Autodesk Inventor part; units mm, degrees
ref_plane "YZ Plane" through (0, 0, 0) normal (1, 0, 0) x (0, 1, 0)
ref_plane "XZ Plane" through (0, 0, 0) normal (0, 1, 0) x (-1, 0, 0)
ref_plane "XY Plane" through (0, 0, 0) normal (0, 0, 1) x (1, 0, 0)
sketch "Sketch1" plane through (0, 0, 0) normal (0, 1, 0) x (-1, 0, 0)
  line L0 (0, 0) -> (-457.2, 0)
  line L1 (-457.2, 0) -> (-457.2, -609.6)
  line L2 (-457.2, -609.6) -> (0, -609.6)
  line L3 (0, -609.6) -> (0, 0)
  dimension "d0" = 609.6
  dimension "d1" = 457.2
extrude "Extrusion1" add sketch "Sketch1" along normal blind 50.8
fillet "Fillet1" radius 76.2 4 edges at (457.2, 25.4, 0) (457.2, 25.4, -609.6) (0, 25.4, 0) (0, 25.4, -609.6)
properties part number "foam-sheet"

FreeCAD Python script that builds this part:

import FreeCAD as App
import Part
import Sketcher

V = App.Vector
Q = App.Units.Quantity


def edges_at(feature, points):
    """Names of the edges that pass closest to the given points."""
    edges = feature.Shape.Edges
    near = lambda p: min(range(len(edges)), key=lambda i: edges[i].distToShape(Part.Vertex(*p))[0])
    return sorted({f"Edge{near(p) + 1}" for p in points})


def add_polygon(sketch, points):
    """Adds a closed chain of lines whose ends are joined by coincident constraints."""
    first, n = sketch.GeometryCount, len(points)
    for a, b in zip(points, points[1:] + points[:1]):
        sketch.addGeometry(Part.LineSegment(App.Vector(*a, 0), App.Vector(*b, 0)), False)
    for i in range(n):
        sketch.addConstraint(Sketcher.Constraint("Coincident", first + i, 2, first + (i + 1) % n, 1))

doc = App.newDocument("Part")
body = doc.addObject("PartDesign::Body", "Body")

# Sketch on XZ plane
sketch1 = body.newObject("Sketcher::SketchObject", "Sketch")
sketch1.AttachmentSupport = (doc.getObject("XZ_Plane"), [""])
sketch1.MapMode = "FlatFace"
add_polygon(sketch1, [(0, -610), (0, 0), (457, 0), (457, -610)])  # lines 0-3
sketch1.addConstraint([
    Sketcher.Constraint("Vertical", 0),
    Sketcher.Constraint("Horizontal", 1),
    Sketcher.Constraint("Vertical", 2),
    Sketcher.Constraint("Horizontal", 3),
    Sketcher.Constraint("Coincident", 0, 2, -1, 1),
    Sketcher.Constraint("DistanceX", 1, 1, 1, 2, Q("18 in")),
    Sketcher.Constraint("DistanceY", 0, 1, 0, 2, Q("24 in")),
])
pad1 = body.newObject("PartDesign::Pad", "Pad")
pad1.Profile = sketch1
pad1.Length = Q("2 in")
pad1.Reversed = True
doc.recompute()

fillet = body.newObject("PartDesign::Fillet", "Fillet")
fillet.Base = (pad1, edges_at(pad1, [
    (457.2, 25.4, 0),
    (457.2, 25.4, -609.6),
    (0, 25.4, 0),
    (0, 25.4, -609.6),
]))
fillet.Radius = Q("3 in")

doc.recompute()
